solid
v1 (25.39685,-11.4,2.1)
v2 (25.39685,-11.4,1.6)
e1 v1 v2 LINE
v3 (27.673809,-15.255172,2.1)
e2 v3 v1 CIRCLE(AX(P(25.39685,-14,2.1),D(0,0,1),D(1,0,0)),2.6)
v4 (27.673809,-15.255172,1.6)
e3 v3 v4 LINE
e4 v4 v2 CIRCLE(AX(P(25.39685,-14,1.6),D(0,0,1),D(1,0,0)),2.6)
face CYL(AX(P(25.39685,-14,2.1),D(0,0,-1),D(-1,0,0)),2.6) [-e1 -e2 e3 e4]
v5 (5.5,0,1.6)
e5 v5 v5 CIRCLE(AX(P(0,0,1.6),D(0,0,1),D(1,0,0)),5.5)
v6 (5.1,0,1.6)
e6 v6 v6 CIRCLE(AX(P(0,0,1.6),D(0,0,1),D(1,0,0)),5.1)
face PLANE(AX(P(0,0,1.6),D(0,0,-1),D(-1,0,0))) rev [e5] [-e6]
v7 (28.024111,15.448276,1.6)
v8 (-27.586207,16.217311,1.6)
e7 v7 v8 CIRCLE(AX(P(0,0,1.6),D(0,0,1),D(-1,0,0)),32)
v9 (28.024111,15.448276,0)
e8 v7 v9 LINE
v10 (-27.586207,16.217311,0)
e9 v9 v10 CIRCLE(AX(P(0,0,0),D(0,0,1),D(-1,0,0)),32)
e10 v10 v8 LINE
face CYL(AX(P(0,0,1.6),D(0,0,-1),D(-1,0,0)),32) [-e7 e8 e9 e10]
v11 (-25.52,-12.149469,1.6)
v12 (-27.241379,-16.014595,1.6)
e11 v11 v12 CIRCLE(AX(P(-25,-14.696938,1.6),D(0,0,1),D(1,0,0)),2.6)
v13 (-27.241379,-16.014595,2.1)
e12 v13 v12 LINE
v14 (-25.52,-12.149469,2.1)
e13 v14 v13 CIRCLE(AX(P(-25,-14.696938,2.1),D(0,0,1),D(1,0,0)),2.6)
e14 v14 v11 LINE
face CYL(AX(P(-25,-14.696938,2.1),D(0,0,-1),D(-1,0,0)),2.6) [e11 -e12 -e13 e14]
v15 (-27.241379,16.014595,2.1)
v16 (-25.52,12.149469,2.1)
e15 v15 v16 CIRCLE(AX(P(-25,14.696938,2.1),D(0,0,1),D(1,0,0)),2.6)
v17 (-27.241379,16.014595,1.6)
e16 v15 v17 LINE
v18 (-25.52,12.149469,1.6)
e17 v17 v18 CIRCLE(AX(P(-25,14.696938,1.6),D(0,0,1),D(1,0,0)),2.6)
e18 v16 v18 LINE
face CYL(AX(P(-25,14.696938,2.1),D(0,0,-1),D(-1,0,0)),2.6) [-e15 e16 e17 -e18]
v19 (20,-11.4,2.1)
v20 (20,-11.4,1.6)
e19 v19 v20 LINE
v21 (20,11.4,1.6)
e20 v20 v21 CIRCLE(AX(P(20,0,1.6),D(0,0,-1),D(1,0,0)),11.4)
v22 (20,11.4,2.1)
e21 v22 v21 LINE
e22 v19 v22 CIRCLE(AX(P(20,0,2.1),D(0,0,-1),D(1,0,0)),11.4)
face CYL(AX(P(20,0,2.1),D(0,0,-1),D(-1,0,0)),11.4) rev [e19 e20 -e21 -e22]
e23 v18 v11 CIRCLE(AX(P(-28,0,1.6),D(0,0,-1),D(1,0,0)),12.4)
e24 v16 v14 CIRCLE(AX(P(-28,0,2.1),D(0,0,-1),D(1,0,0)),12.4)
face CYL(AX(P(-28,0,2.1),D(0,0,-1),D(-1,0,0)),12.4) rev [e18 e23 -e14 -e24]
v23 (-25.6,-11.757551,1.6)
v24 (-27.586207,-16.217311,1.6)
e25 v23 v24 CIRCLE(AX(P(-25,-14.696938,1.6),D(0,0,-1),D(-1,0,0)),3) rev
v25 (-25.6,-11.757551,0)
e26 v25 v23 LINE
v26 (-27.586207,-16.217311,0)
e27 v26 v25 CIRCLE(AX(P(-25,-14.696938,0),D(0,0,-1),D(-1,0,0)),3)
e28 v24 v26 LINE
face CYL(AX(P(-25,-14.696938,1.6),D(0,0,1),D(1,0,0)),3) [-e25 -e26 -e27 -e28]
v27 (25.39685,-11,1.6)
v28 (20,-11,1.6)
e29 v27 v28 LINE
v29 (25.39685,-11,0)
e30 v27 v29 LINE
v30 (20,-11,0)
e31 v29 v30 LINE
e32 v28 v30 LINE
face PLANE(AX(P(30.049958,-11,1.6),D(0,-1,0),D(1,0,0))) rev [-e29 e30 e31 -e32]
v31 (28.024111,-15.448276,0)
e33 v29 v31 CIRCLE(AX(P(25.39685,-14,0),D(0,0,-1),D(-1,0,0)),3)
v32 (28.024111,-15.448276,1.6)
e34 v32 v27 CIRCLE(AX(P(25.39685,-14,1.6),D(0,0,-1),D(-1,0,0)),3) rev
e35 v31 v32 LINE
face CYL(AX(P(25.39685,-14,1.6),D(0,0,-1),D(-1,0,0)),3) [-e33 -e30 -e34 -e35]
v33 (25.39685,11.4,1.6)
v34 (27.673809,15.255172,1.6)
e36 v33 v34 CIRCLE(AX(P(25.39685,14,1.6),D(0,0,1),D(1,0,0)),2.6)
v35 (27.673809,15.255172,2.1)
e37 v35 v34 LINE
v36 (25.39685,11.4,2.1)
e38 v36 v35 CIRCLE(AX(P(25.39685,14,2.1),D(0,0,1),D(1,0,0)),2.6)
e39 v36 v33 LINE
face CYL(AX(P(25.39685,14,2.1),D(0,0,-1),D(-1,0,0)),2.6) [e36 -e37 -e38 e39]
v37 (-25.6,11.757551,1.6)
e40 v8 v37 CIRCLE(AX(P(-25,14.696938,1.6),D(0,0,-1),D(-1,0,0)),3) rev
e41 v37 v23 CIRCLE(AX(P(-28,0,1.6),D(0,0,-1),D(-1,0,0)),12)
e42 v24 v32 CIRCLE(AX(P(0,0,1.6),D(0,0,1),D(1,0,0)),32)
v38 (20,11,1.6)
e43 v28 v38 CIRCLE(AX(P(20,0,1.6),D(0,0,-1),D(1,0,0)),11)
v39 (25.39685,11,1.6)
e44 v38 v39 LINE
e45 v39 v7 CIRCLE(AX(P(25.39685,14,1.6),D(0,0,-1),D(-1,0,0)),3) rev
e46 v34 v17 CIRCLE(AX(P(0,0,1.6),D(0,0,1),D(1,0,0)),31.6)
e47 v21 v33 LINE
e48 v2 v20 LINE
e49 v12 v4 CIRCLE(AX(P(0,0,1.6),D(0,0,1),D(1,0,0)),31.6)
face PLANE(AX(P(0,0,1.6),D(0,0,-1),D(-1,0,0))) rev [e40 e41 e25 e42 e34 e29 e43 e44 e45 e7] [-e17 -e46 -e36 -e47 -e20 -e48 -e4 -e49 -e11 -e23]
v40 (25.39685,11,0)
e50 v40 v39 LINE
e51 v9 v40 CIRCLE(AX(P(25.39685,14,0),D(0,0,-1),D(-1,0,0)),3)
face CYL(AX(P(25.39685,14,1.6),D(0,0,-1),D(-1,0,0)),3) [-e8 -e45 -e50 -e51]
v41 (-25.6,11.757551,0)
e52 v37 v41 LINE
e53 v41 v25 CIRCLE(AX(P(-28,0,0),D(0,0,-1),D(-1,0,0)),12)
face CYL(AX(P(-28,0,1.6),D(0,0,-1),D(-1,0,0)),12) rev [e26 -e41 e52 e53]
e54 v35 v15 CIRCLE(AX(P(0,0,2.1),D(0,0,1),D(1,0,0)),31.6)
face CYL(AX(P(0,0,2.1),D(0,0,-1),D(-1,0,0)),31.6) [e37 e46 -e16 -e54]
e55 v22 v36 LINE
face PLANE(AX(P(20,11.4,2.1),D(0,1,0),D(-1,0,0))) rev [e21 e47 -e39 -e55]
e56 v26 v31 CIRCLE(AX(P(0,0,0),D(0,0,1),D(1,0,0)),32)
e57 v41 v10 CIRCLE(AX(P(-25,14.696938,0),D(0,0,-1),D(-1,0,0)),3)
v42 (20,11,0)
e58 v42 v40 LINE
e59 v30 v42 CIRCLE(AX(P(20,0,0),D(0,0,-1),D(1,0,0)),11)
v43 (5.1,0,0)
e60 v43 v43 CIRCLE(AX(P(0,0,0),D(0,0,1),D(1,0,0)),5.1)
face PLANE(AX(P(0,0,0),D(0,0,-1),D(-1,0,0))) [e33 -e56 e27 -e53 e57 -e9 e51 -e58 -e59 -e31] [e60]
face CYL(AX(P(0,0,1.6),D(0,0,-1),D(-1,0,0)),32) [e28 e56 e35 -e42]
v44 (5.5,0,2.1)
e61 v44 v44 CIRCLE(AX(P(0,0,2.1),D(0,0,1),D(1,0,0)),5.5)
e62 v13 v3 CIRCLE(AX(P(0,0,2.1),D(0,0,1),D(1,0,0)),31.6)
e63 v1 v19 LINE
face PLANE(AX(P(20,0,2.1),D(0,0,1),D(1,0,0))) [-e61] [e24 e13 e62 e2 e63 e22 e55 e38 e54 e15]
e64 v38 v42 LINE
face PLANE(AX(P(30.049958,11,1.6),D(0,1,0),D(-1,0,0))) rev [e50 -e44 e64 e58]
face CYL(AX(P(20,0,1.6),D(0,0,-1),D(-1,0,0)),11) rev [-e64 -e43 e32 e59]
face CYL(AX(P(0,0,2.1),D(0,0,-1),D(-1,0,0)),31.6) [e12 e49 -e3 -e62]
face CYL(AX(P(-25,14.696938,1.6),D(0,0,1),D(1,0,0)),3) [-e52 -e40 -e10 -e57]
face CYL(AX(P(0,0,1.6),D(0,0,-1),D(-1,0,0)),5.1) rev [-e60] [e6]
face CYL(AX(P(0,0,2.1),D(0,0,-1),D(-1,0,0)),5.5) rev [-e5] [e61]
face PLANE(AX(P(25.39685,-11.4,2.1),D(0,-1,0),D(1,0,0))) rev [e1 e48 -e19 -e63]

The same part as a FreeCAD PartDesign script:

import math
import FreeCAD as App
import Part
import Sketcher


def edges_at(feature, points):
    """Names of the edges that pass closest to the given points."""
    edges = feature.Shape.Edges
    near = lambda p: min(range(len(edges)), key=lambda i: edges[i].distToShape(Part.Vertex(*p))[0])
    return sorted({f"Edge{near(p) + 1}" for p in points})

doc = App.newDocument("Part")
body = doc.addObject("PartDesign::Body", "Body")

sketch1 = doc.addObject("Sketcher::SketchObject", "Sketch")
body.addObject(sketch1)
sketch1.AttachmentSupport = (doc.XY_Plane, [""])
sketch1.MapMode = "FlatFace"
sketch1.addGeometry([
    Part.LineSegment(App.Vector(20, 11, 0), App.Vector(30, 11, 0)),
    Part.ArcOfCircle(Part.Circle(App.Vector(0, 0, 0), App.Vector(0, 0, 1), 32), math.radians(20), math.radians(158)),
    Part.ArcOfCircle(Part.Circle(App.Vector(-28, 0, 0), App.Vector(0, 0, 1), 12), math.radians(-98), math.radians(98)),
    Part.ArcOfCircle(Part.Circle(App.Vector(0, 0, 0), App.Vector(0, 0, 1), 32), math.radians(-158), math.radians(-20)),
    Part.LineSegment(App.Vector(30, -11, 0), App.Vector(20, -11, 0)),
    Part.ArcOfCircle(Part.Circle(App.Vector(20, 0, 0), App.Vector(0, 0, 1), 11), math.radians(90), math.radians(270)),
    Part.Circle(App.Vector(0, 0, 0), App.Vector(0, 0, 1), 5),
], False)
sketch1.addConstraint([
    Sketcher.Constraint("Coincident", 0, 2, 1, 1),
    Sketcher.Constraint("Coincident", 1, 2, 2, 2),
    Sketcher.Constraint("Coincident", 2, 1, 3, 1),
    Sketcher.Constraint("Coincident", 3, 2, 4, 1),
    Sketcher.Constraint("Tangent", 4, 2, 5, 2),
    Sketcher.Constraint("Tangent", 5, 1, 0, 1),
    Sketcher.Constraint("Horizontal", 0),
    Sketcher.Constraint("Horizontal", 4),
    Sketcher.Constraint("Coincident", 1, 3, -1, 1),
    Sketcher.Constraint("Coincident", 3, 3, -1, 1),
    Sketcher.Constraint("Coincident", 6, 3, -1, 1),
    Sketcher.Constraint("Equal", 1, 3),
    Sketcher.Constraint("PointOnObject", 2, 3, -1),
    Sketcher.Constraint("PointOnObject", 5, 3, -1),
    Sketcher.Constraint("Radius", 1, 32.0),
    Sketcher.Constraint("Radius", 2, 12.0),
    Sketcher.Constraint("Radius", 5, 11.0),
    Sketcher.Constraint("Diameter", 6, 10.2),
    Sketcher.Constraint("DistanceX", 2, 3, -1, 1, 28.0),
    Sketcher.Constraint("DistanceX", -1, 1, 5, 3, 20.0),
])
pad1 = doc.addObject("PartDesign::Pad", "Pad")
body.addObject(pad1)
pad1.Profile = sketch1
pad1.Length = 1.6
doc.recompute()

fillet = doc.addObject("PartDesign::Fillet", "Fillet")
body.addObject(fillet)
fillet.Base = (pad1, edges_at(pad1, [
    (30.05, 11, 0.8),
    (30.05, -11, 0.8),
    (-29.714, -11.877, 0.8),
    (-29.714, 11.877, 0.8),
]))
fillet.Radius = 3

sketch2 = doc.addObject("Sketcher::SketchObject", "Sketch001")
body.addObject(sketch2)
sketch2.AttachmentSupport = (doc.XY_Plane, [""])
sketch2.MapMode = "FlatFace"
sketch2.AttachmentOffset = App.Placement(App.Vector(0, 0, 1.6), App.Rotation())
sketch2.addGeometry([
    Part.LineSegment(App.Vector(20, 11.4, 0), App.Vector(25.4, 11.4, 0)),
    Part.ArcOfCircle(Part.Circle(App.Vector(25.4, 14, 0), App.Vector(0, 0, 1), 2.6), math.radians(-90), math.radians(29)),
    Part.ArcOfCircle(Part.Circle(App.Vector(0, 0, 0), App.Vector(0, 0, 1), 31.6), math.radians(29), math.radians(150)),
    Part.ArcOfCircle(Part.Circle(App.Vector(-25, 14.7, 0), App.Vector(0, 0, 1), 2.6), math.radians(150), math.radians(258)),
    Part.ArcOfCircle(Part.Circle(App.Vector(-28, 0, 0), App.Vector(0, 0, 1), 12.4), math.radians(-78), math.radians(78)),
    Part.ArcOfCircle(Part.Circle(App.Vector(-25, -14.7, 0), App.Vector(0, 0, 1), 2.6), math.radians(102), math.radians(210)),
    Part.ArcOfCircle(Part.Circle(App.Vector(0, 0, 0), App.Vector(0, 0, 1), 31.6), math.radians(-150), math.radians(-29)),
    Part.ArcOfCircle(Part.Circle(App.Vector(25.4, -14, 0), App.Vector(0, 0, 1), 2.6), math.radians(-29), math.radians(90)),
    Part.LineSegment(App.Vector(25.4, -11.4, 0), App.Vector(20, -11.4, 0)),
    Part.ArcOfCircle(Part.Circle(App.Vector(20, 0, 0), App.Vector(0, 0, 1), 11.4), math.radians(90), math.radians(270)),
    Part.Circle(App.Vector(0, 0, 0), App.Vector(0, 0, 1), 5.5),
], False)
sketch2.addConstraint([
    Sketcher.Constraint("Tangent", 0, 2, 1, 1),
    Sketcher.Constraint("Tangent", 1, 2, 2, 1),
    Sketcher.Constraint("Tangent", 2, 2, 3, 1),
    Sketcher.Constraint("Tangent", 3, 2, 4, 2),
    Sketcher.Constraint("Tangent", 4, 1, 5, 1),
    Sketcher.Constraint("Tangent", 5, 2, 6, 1),
    Sketcher.Constraint("Tangent", 6, 2, 7, 1),
    Sketcher.Constraint("Tangent", 7, 2, 8, 1),
    Sketcher.Constraint("Tangent", 8, 2, 9, 2),
    Sketcher.Constraint("Tangent", 9, 1, 0, 1),
    Sketcher.Constraint("Horizontal", 0),
    Sketcher.Constraint("Horizontal", 8),
    Sketcher.Constraint("Coincident", 2, 3, -1, 1),
    Sketcher.Constraint("Coincident", 6, 3, -1, 1),
    Sketcher.Constraint("Coincident", 10, 3, -1, 1),
    Sketcher.Constraint("Equal", 1, 3),
    Sketcher.Constraint("Equal", 3, 5),
    Sketcher.Constraint("Equal", 2, 6),
    Sketcher.Constraint("Equal", 5, 7),
    Sketcher.Constraint("PointOnObject", 4, 3, -1),
    Sketcher.Constraint("PointOnObject", 9, 3, -1),
    Sketcher.Constraint("Diameter", 10, 11.0),
    Sketcher.Constraint("Radius", 1, 2.6),
    Sketcher.Constraint("Radius", 2, 31.6),
    Sketcher.Constraint("Radius", 4, 12.4),
    Sketcher.Constraint("Radius", 9, 11.4),
    Sketcher.Constraint("DistanceX", 3, 3, -1, 1, 25.0),
    Sketcher.Constraint("DistanceX", -1, 1, 9, 3, 20.0),
])
pad2 = doc.addObject("PartDesign::Pad", "Pad001")
body.addObject(pad2)
pad2.Profile = sketch2
pad2.Length = 0.5

doc.recompute()
